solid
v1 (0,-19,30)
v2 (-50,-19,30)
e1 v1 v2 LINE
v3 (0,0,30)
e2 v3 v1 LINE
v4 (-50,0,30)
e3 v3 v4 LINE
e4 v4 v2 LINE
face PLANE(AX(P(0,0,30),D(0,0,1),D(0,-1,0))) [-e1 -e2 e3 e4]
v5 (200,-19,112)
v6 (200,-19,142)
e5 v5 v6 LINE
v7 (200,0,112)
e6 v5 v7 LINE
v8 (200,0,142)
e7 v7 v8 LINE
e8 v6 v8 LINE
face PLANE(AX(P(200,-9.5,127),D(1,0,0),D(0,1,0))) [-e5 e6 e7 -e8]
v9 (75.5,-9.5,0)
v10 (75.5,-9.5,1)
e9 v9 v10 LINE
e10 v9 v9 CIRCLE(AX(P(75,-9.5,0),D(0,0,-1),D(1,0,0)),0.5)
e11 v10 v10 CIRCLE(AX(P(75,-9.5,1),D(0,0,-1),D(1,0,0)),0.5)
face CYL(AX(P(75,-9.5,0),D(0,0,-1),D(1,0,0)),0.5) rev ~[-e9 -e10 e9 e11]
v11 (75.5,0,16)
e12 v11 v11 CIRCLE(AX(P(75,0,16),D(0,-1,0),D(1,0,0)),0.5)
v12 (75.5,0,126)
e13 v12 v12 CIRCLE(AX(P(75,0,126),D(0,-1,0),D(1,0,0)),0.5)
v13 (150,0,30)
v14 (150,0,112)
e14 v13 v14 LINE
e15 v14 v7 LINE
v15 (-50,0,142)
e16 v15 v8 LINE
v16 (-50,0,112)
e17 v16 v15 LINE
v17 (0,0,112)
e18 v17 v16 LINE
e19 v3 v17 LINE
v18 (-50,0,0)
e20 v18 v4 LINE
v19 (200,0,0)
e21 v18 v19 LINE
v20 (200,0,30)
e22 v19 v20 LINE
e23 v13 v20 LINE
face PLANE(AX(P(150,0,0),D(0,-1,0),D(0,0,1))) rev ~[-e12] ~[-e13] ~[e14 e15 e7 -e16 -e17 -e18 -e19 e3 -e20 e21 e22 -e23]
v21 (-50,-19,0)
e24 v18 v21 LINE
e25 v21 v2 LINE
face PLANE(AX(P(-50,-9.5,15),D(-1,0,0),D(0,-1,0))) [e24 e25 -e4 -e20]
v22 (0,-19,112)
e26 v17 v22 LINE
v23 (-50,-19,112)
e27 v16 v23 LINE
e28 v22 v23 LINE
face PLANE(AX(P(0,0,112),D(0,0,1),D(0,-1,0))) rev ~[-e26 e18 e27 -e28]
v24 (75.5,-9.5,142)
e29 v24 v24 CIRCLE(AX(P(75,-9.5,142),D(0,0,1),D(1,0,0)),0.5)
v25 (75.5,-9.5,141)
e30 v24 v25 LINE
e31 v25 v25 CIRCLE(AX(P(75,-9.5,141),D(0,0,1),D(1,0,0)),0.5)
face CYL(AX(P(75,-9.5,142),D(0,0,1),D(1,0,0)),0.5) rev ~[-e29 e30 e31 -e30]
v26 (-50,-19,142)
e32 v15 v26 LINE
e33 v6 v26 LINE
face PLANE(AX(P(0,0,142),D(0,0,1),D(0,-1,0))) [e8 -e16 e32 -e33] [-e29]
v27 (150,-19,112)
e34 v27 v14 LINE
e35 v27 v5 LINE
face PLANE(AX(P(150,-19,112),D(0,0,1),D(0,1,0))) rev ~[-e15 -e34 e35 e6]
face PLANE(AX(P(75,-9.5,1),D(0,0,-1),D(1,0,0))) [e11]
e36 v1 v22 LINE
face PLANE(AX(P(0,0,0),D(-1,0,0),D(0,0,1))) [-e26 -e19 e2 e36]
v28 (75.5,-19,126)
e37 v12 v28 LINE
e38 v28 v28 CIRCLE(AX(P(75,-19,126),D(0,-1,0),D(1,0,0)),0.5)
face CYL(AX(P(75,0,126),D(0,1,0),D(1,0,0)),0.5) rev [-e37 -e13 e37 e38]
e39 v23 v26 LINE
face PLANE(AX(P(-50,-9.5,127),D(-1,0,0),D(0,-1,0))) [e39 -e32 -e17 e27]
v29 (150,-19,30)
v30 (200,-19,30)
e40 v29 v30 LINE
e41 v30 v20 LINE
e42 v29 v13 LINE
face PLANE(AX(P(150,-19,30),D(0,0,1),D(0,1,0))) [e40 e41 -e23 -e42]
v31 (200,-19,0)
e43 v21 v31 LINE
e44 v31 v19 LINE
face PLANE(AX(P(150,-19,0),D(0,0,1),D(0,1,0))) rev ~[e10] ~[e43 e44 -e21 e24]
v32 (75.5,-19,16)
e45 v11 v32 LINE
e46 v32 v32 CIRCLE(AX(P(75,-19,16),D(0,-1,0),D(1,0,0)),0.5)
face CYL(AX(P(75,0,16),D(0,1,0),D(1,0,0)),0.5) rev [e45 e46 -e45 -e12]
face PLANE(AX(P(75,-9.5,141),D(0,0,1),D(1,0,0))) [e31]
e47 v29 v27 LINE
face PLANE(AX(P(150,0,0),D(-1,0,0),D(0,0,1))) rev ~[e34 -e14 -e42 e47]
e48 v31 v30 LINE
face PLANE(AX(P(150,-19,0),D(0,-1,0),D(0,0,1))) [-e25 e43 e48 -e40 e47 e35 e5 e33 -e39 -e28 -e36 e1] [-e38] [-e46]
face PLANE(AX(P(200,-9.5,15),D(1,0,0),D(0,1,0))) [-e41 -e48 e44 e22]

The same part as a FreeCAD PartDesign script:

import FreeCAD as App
import Part
import Sketcher

V = App.Vector

doc = App.newDocument("Part")
params = doc.addObject("Spreadsheet::Sheet", "Params")
for row, (alias, value) in enumerate([
    ("sketch1_diameter", "1 mm"),
    ("sketch1_width", "150 mm"),
    ("sketch1_height", "142 mm"),
    ("pad1_length", "19 mm"),
    ("sketch2_diameter", "1 mm"),
    ("pocket1_length", "1 mm"),
    ("sketch3_diameter", "1 mm"),
    ("pocket2_length", "1 mm"),
    ("sketch4_width", "19 mm"),
    ("sketch4_height", "30 mm"),
    ("pad2_length", "50 mm"),
    ("sketch5_width", "19 mm"),
    ("sketch5_height", "30 mm"),
    ("pad3_length", "50 mm"),
], start=1):
    params.set(f"A{row}", alias)
    params.set(f"B{row}", "=" + value)
    params.setAlias(f"B{row}", alias)

body = doc.addObject("PartDesign::Body", "Body")

sketch1 = doc.addObject("Sketcher::SketchObject", "Sketch")
body.addObject(sketch1)
sketch1.AttachmentSupport = (doc.XZ_Plane, [""])
sketch1.MapMode = "FlatFace"
sketch1.addGeometry([
    Part.LineSegment(V(0, 142, 0), V(0, 0, 0)),
    Part.LineSegment(V(0, 0, 0), V(150, 0, 0)),
    Part.LineSegment(V(150, 0, 0), V(150, 142, 0)),
    Part.LineSegment(V(150, 142, 0), V(0, 142, 0)),
    Part.Circle(V(75, 16, 0), V(0, 0, 1), 0.5),
    Part.Circle(V(75, 126, 0), V(0, 0, 1), 0.5),
], False)
sketch1.addConstraint([
    Sketcher.Constraint("Coincident", 0, 2, 1, 1),
    Sketcher.Constraint("Coincident", 1, 2, 2, 1),
    Sketcher.Constraint("Coincident", 2, 2, 3, 1),
    Sketcher.Constraint("Coincident", 3, 2, 0, 1),
    Sketcher.Constraint("Vertical", 0),
    Sketcher.Constraint("Horizontal", 1),
    Sketcher.Constraint("Vertical", 2),
    Sketcher.Constraint("Horizontal", 3),
    Sketcher.Constraint("Coincident", 0, 2, -1, 1),
    Sketcher.Constraint("Equal", 4, 5),
    Sketcher.Constraint("Vertical", 4, 3, 5, 3),
    Sketcher.Constraint("Diameter", 4, 1.0),
    Sketcher.Constraint("DistanceX", 1, 1, 1, 2, 150.0),
    Sketcher.Constraint("DistanceY", 0, 2, 0, 1, 142.0),
    Sketcher.Constraint("DistanceX", -1, 1, 4, 3, 75.0),
    Sketcher.Constraint("DistanceY", -1, 1, 4, 3, 16.0),
    Sketcher.Constraint("DistanceY", -1, 1, 5, 3, 126.0),
])
sketch1.setExpression("Constraints[11]", "Params.sketch1_diameter")
sketch1.setExpression("Constraints[12]", "Params.sketch1_width")
sketch1.setExpression("Constraints[13]", "Params.sketch1_height")
pad1 = doc.addObject("PartDesign::Pad", "Pad")
body.addObject(pad1)
pad1.Profile = sketch1
pad1.setExpression("Length", "Params.pad1_length")

sketch2 = doc.addObject("Sketcher::SketchObject", "Sketch001")
body.addObject(sketch2)
sketch2.AttachmentSupport = (doc.XY_Plane, [""])
sketch2.MapMode = "FlatFace"
sketch2.addGeometry(Part.Circle(V(75, -9.5, 0), V(0, 0, 1), 0.5), False)
sketch2.addConstraint([
    Sketcher.Constraint("Diameter", 0, 1.0),
    Sketcher.Constraint("DistanceX", -1, 1, 0, 3, 75.0),
    Sketcher.Constraint("DistanceY", 0, 3, -1, 1, 9.5),
])
sketch2.setExpression("Constraints[0]", "Params.sketch2_diameter")
pocket1 = doc.addObject("PartDesign::Pocket", "Pocket")
body.addObject(pocket1)
pocket1.Profile = sketch2
pocket1.setExpression("Length", "Params.pocket1_length")
pocket1.Reversed = True

sketch3 = doc.addObject("Sketcher::SketchObject", "Sketch002")
body.addObject(sketch3)
sketch3.AttachmentSupport = (doc.XY_Plane, [""])
sketch3.MapMode = "FlatFace"
sketch3.AttachmentOffset = App.Placement(V(0, 0, 142), App.Rotation())
sketch3.addGeometry(Part.Circle(V(75, -9.5, 0), V(0, 0, 1), 0.5), False)
sketch3.addConstraint([
    Sketcher.Constraint("Diameter", 0, 1.0),
    Sketcher.Constraint("DistanceX", -1, 1, 0, 3, 75.0),
    Sketcher.Constraint("DistanceY", 0, 3, -1, 1, 9.5),
])
sketch3.setExpression("Constraints[0]", "Params.sketch3_diameter")
pocket2 = doc.addObject("PartDesign::Pocket", "Pocket001")
body.addObject(pocket2)
pocket2.Profile = sketch3
pocket2.setExpression("Length", "Params.pocket2_length")

sketch4 = doc.addObject("Sketcher::SketchObject", "Sketch003")
body.addObject(sketch4)
sketch4.AttachmentSupport = (doc.YZ_Plane, [""])
sketch4.MapMode = "FlatFace"
sketch4.addGeometry([
    Part.LineSegment(V(0, 142, 0), V(0, 112, 0)),
    Part.LineSegment(V(0, 112, 0), V(-19, 112, 0)),
    Part.LineSegment(V(-19, 112, 0), V(-19, 142, 0)),
    Part.LineSegment(V(-19, 142, 0), V(0, 142, 0)),
    Part.LineSegment(V(0, 30, 0), V(0, 0, 0)),
    Part.LineSegment(V(0, 0, 0), V(-19, 0, 0)),
    Part.LineSegment(V(-19, 0, 0), V(-19, 30, 0)),
    Part.LineSegment(V(-19, 30, 0), V(0, 30, 0)),
], False)
sketch4.addConstraint([
    Sketcher.Constraint("Coincident", 0, 2, 1, 1),
    Sketcher.Constraint("Coincident", 1, 2, 2, 1),
    Sketcher.Constraint("Coincident", 2, 2, 3, 1),
    Sketcher.Constraint("Coincident", 3, 2, 0, 1),
    Sketcher.Constraint("Coincident", 4, 2, 5, 1),
    Sketcher.Constraint("Coincident", 5, 2, 6, 1),
    Sketcher.Constraint("Coincident", 6, 2, 7, 1),
    Sketcher.Constraint("Coincident", 7, 2, 4, 1),
    Sketcher.Constraint("Vertical", 0),
    Sketcher.Constraint("Horizontal", 1),
    Sketcher.Constraint("Vertical", 2),
    Sketcher.Constraint("Horizontal", 3),
    Sketcher.Constraint("Vertical", 4),
    Sketcher.Constraint("Horizontal", 5),
    Sketcher.Constraint("Vertical", 6),
    Sketcher.Constraint("Horizontal", 7),
    Sketcher.Constraint("Coincident", 4, 2, -1, 1),
    Sketcher.Constraint("PointOnObject", 0, 2, -2),
    Sketcher.Constraint("Vertical", 2, 2, 5, 2),
    Sketcher.Constraint("Equal", 2, 4),
    Sketcher.Constraint("DistanceX", 1, 2, 1, 1, 19.0),
    Sketcher.Constraint("DistanceY", 0, 2, 0, 1, 30.0),
    Sketcher.Constraint("DistanceY", -1, 1, 0, 2, 112.0),
])
sketch4.setExpression("Constraints[20]", "Params.sketch4_width")
sketch4.setExpression("Constraints[21]", "Params.sketch4_height")
pad2 = doc.addObject("PartDesign::Pad", "Pad001")
body.addObject(pad2)
pad2.Profile = sketch4
pad2.setExpression("Length", "Params.pad2_length")
pad2.Reversed = True

sketch5 = doc.addObject("Sketcher::SketchObject", "Sketch004")
body.addObject(sketch5)
sketch5.AttachmentSupport = (doc.YZ_Plane, [""])
sketch5.MapMode = "FlatFace"
sketch5.AttachmentOffset = App.Placement(V(0, 0, 150), App.Rotation())
sketch5.addGeometry([
    Part.LineSegment(V(-19, 30, 0), V(-19, 0, 0)),
    Part.LineSegment(V(-19, 0, 0), V(0, 0, 0)),
    Part.LineSegment(V(0, 0, 0), V(0, 30, 0)),
    Part.LineSegment(V(0, 30, 0), V(-19, 30, 0)),
    Part.LineSegment(V(-19, 142, 0), V(-19, 112, 0)),
    Part.LineSegment(V(-19, 112, 0), V(0, 112, 0)),
    Part.LineSegment(V(0, 112, 0), V(0, 142, 0)),
    Part.LineSegment(V(0, 142, 0), V(-19, 142, 0)),
], False)
sketch5.addConstraint([
    Sketcher.Constraint("Coincident", 0, 2, 1, 1),
    Sketcher.Constraint("Coincident", 1, 2, 2, 1),
    Sketcher.Constraint("Coincident", 2, 2, 3, 1),
    Sketcher.Constraint("Coincident", 3, 2, 0, 1),
    Sketcher.Constraint("Coincident", 4, 2, 5, 1),
    Sketcher.Constraint("Coincident", 5, 2, 6, 1),
    Sketcher.Constraint("Coincident", 6, 2, 7, 1),
    Sketcher.Constraint("Coincident", 7, 2, 4, 1),
    Sketcher.Constraint("Vertical", 0),
    Sketcher.Constraint("Horizontal", 1),
    Sketcher.Constraint("Vertical", 2),
    Sketcher.Constraint("Horizontal", 3),
    Sketcher.Constraint("Vertical", 4),
    Sketcher.Constraint("Horizontal", 5),
    Sketcher.Constraint("Vertical", 6),
    Sketcher.Constraint("Horizontal", 7),
    Sketcher.Constraint("Coincident", 1, 2, -1, 1),
    Sketcher.Constraint("PointOnObject", 5, 2, -2),
    Sketcher.Constraint("Vertical", 3, 2, 4, 2),
    Sketcher.Constraint("Equal", 2, 4),
    Sketcher.Constraint("DistanceX", 1, 1, 1, 2, 19.0),
    Sketcher.Constraint("DistanceY", 0, 2, 0, 1, 30.0),
    Sketcher.Constraint("DistanceY", -1, 1, 4, 2, 112.0),
])
sketch5.setExpression("Constraints[20]", "Params.sketch5_width")
sketch5.setExpression("Constraints[21]", "Params.sketch5_height")
pad3 = doc.addObject("PartDesign::Pad", "Pad002")
body.addObject(pad3)
pad3.Profile = sketch5
pad3.setExpression("Length", "Params.pad3_length")

doc.recompute()
